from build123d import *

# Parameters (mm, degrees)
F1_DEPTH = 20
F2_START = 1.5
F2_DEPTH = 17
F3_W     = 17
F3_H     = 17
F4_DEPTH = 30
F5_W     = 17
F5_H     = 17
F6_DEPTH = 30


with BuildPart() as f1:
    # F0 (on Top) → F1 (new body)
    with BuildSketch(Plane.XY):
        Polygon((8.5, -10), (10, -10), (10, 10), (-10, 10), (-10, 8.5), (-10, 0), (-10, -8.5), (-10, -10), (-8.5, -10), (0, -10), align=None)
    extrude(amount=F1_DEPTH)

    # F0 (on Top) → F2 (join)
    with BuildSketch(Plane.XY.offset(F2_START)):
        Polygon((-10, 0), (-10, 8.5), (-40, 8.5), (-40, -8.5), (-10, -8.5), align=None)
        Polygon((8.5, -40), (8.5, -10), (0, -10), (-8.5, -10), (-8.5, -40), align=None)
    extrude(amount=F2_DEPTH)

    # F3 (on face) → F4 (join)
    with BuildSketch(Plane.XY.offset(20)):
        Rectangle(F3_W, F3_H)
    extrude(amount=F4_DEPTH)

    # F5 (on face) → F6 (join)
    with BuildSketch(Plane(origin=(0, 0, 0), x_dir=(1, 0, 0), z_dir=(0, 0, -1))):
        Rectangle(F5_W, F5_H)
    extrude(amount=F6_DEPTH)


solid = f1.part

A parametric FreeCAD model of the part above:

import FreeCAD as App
import Part
import Sketcher
from FreeCAD import Vector


def add_polygon(sketch, points):
    """Adds a closed chain of lines whose ends are joined by coincident constraints."""
    first, n = sketch.GeometryCount, len(points)
    for a, b in zip(points, points[1:] + points[:1]):
        sketch.addGeometry(Part.LineSegment(App.Vector(*a, 0), App.Vector(*b, 0)), False)
    for i in range(n):
        sketch.addConstraint(Sketcher.Constraint("Coincident", first + i, 2, first + (i + 1) % n, 1))

doc = App.newDocument("Part")
body = doc.addObject("PartDesign::Body", "Body")

# Sketch on XY plane
sketch1 = doc.addObject("Sketcher::SketchObject", "Sketch")
body.addObject(sketch1)
sketch1.AttachmentSupport = (doc.XY_Plane, [""])
sketch1.MapMode = "FlatFace"
add_polygon(sketch1, [(10, -10), (10, 10), (-10, 10), (-10, -10)])  # lines 0-3
sketch1.addConstraint([
    Sketcher.Constraint("Vertical", 0),
    Sketcher.Constraint("Horizontal", 1),
    Sketcher.Constraint("Vertical", 2),
    Sketcher.Constraint("Horizontal", 3),
    Sketcher.Constraint("Symmetric", 0, 2, 2, 2, -1, 1),
    Sketcher.Constraint("Equal", 3, 0),
    Sketcher.Constraint("DistanceX", 1, 2, 1, 1, 20.0),
])
pad1 = doc.addObject("PartDesign::Pad", "Pad")
body.addObject(pad1)
pad1.Profile = sketch1
pad1.Length = 20

# Sketch on XY plane
sketch2 = doc.addObject("Sketcher::SketchObject", "Sketch001")
body.addObject(sketch2)
sketch2.AttachmentSupport = (doc.XY_Plane, [""])
sketch2.MapMode = "FlatFace"
sketch2.AttachmentOffset = App.Placement(Vector(0, 0, 1.5), App.Rotation())
add_polygon(sketch2, [(-10, 8), (-40, 8), (-40, -8), (-10, -8)])  # lines 0-3
add_polygon(sketch2, [(8, -40), (8, -10), (-8, -10), (-8, -40)])  # lines 4-7
sketch2.addConstraint([
    Sketcher.Constraint("Horizontal", 0),
    Sketcher.Constraint("Vertical", 1),
    Sketcher.Constraint("Horizontal", 2),
    Sketcher.Constraint("Vertical", 3),
    Sketcher.Constraint("Vertical", 4),
    Sketcher.Constraint("Horizontal", 5),
    Sketcher.Constraint("Vertical", 6),
    Sketcher.Constraint("Horizontal", 7),
    Sketcher.Constraint("Equal", 7, 1),
    Sketcher.Constraint("Equal", 2, 4),
    Sketcher.Constraint("DistanceX", 0, 2, 0, 1, 30.0),
    Sketcher.Constraint("DistanceX", 5, 2, 5, 1, 17.0),
    Sketcher.Constraint("DistanceX", 0, 2, -1, 1, 40.0),
    Sketcher.Constraint("DistanceY", 4, 2, -1, 1, 10.0),
    Sketcher.Constraint("DistanceY", -1, 1, 0, 2, 8.5),
    Sketcher.Constraint("DistanceX", -1, 1, 4, 2, 8.5),
])
pad2 = doc.addObject("PartDesign::Pad", "Pad001")
body.addObject(pad2)
pad2.Profile = sketch2
pad2.Length = 17

# Sketch on XY plane
sketch3 = doc.addObject("Sketcher::SketchObject", "Sketch002")
body.addObject(sketch3)
sketch3.AttachmentSupport = (doc.XY_Plane, [""])
sketch3.MapMode = "FlatFace"
sketch3.AttachmentOffset = App.Placement(Vector(0, 0, 20), App.Rotation())
add_polygon(sketch3, [(-8, 8), (-8, -8), (8, -8), (8, 8)])  # lines 0-3
sketch3.addConstraint([
    Sketcher.Constraint("Vertical", 0),
    Sketcher.Constraint("Horizontal", 1),
    Sketcher.Constraint("Vertical", 2),
    Sketcher.Constraint("Horizontal", 3),
    Sketcher.Constraint("Symmetric", 0, 2, 2, 2, -1, 1),
    Sketcher.Constraint("Equal", 3, 0),
    Sketcher.Constraint("DistanceX", 1, 1, 1, 2, 17.0),
])
pad3 = doc.addObject("PartDesign::Pad", "Pad002")
body.addObject(pad3)
pad3.Profile = sketch3
pad3.Length = 30

# Sketch on XY plane
sketch4 = doc.addObject("Sketcher::SketchObject", "Sketch003")
body.addObject(sketch4)
sketch4.AttachmentSupport = (doc.XY_Plane, [""])
sketch4.MapMode = "FlatFace"
add_polygon(sketch4, [(-8, -8), (-8, 8), (8, 8), (8, -8)])  # lines 0-3
sketch4.addConstraint([
    Sketcher.Constraint("Vertical", 0),
    Sketcher.Constraint("Horizontal", 1),
    Sketcher.Constraint("Vertical", 2),
    Sketcher.Constraint("Horizontal", 3),
    Sketcher.Constraint("Symmetric", 0, 2, 2, 2, -1, 1),
    Sketcher.Constraint("Equal", 3, 0),
    Sketcher.Constraint("DistanceX", 1, 1, 1, 2, 17.0),
])
pad4 = doc.addObject("PartDesign::Pad", "Pad003")
body.addObject(pad4)
pad4.Profile = sketch4
pad4.Length = 30
pad4.Reversed = True

doc.recompute()
